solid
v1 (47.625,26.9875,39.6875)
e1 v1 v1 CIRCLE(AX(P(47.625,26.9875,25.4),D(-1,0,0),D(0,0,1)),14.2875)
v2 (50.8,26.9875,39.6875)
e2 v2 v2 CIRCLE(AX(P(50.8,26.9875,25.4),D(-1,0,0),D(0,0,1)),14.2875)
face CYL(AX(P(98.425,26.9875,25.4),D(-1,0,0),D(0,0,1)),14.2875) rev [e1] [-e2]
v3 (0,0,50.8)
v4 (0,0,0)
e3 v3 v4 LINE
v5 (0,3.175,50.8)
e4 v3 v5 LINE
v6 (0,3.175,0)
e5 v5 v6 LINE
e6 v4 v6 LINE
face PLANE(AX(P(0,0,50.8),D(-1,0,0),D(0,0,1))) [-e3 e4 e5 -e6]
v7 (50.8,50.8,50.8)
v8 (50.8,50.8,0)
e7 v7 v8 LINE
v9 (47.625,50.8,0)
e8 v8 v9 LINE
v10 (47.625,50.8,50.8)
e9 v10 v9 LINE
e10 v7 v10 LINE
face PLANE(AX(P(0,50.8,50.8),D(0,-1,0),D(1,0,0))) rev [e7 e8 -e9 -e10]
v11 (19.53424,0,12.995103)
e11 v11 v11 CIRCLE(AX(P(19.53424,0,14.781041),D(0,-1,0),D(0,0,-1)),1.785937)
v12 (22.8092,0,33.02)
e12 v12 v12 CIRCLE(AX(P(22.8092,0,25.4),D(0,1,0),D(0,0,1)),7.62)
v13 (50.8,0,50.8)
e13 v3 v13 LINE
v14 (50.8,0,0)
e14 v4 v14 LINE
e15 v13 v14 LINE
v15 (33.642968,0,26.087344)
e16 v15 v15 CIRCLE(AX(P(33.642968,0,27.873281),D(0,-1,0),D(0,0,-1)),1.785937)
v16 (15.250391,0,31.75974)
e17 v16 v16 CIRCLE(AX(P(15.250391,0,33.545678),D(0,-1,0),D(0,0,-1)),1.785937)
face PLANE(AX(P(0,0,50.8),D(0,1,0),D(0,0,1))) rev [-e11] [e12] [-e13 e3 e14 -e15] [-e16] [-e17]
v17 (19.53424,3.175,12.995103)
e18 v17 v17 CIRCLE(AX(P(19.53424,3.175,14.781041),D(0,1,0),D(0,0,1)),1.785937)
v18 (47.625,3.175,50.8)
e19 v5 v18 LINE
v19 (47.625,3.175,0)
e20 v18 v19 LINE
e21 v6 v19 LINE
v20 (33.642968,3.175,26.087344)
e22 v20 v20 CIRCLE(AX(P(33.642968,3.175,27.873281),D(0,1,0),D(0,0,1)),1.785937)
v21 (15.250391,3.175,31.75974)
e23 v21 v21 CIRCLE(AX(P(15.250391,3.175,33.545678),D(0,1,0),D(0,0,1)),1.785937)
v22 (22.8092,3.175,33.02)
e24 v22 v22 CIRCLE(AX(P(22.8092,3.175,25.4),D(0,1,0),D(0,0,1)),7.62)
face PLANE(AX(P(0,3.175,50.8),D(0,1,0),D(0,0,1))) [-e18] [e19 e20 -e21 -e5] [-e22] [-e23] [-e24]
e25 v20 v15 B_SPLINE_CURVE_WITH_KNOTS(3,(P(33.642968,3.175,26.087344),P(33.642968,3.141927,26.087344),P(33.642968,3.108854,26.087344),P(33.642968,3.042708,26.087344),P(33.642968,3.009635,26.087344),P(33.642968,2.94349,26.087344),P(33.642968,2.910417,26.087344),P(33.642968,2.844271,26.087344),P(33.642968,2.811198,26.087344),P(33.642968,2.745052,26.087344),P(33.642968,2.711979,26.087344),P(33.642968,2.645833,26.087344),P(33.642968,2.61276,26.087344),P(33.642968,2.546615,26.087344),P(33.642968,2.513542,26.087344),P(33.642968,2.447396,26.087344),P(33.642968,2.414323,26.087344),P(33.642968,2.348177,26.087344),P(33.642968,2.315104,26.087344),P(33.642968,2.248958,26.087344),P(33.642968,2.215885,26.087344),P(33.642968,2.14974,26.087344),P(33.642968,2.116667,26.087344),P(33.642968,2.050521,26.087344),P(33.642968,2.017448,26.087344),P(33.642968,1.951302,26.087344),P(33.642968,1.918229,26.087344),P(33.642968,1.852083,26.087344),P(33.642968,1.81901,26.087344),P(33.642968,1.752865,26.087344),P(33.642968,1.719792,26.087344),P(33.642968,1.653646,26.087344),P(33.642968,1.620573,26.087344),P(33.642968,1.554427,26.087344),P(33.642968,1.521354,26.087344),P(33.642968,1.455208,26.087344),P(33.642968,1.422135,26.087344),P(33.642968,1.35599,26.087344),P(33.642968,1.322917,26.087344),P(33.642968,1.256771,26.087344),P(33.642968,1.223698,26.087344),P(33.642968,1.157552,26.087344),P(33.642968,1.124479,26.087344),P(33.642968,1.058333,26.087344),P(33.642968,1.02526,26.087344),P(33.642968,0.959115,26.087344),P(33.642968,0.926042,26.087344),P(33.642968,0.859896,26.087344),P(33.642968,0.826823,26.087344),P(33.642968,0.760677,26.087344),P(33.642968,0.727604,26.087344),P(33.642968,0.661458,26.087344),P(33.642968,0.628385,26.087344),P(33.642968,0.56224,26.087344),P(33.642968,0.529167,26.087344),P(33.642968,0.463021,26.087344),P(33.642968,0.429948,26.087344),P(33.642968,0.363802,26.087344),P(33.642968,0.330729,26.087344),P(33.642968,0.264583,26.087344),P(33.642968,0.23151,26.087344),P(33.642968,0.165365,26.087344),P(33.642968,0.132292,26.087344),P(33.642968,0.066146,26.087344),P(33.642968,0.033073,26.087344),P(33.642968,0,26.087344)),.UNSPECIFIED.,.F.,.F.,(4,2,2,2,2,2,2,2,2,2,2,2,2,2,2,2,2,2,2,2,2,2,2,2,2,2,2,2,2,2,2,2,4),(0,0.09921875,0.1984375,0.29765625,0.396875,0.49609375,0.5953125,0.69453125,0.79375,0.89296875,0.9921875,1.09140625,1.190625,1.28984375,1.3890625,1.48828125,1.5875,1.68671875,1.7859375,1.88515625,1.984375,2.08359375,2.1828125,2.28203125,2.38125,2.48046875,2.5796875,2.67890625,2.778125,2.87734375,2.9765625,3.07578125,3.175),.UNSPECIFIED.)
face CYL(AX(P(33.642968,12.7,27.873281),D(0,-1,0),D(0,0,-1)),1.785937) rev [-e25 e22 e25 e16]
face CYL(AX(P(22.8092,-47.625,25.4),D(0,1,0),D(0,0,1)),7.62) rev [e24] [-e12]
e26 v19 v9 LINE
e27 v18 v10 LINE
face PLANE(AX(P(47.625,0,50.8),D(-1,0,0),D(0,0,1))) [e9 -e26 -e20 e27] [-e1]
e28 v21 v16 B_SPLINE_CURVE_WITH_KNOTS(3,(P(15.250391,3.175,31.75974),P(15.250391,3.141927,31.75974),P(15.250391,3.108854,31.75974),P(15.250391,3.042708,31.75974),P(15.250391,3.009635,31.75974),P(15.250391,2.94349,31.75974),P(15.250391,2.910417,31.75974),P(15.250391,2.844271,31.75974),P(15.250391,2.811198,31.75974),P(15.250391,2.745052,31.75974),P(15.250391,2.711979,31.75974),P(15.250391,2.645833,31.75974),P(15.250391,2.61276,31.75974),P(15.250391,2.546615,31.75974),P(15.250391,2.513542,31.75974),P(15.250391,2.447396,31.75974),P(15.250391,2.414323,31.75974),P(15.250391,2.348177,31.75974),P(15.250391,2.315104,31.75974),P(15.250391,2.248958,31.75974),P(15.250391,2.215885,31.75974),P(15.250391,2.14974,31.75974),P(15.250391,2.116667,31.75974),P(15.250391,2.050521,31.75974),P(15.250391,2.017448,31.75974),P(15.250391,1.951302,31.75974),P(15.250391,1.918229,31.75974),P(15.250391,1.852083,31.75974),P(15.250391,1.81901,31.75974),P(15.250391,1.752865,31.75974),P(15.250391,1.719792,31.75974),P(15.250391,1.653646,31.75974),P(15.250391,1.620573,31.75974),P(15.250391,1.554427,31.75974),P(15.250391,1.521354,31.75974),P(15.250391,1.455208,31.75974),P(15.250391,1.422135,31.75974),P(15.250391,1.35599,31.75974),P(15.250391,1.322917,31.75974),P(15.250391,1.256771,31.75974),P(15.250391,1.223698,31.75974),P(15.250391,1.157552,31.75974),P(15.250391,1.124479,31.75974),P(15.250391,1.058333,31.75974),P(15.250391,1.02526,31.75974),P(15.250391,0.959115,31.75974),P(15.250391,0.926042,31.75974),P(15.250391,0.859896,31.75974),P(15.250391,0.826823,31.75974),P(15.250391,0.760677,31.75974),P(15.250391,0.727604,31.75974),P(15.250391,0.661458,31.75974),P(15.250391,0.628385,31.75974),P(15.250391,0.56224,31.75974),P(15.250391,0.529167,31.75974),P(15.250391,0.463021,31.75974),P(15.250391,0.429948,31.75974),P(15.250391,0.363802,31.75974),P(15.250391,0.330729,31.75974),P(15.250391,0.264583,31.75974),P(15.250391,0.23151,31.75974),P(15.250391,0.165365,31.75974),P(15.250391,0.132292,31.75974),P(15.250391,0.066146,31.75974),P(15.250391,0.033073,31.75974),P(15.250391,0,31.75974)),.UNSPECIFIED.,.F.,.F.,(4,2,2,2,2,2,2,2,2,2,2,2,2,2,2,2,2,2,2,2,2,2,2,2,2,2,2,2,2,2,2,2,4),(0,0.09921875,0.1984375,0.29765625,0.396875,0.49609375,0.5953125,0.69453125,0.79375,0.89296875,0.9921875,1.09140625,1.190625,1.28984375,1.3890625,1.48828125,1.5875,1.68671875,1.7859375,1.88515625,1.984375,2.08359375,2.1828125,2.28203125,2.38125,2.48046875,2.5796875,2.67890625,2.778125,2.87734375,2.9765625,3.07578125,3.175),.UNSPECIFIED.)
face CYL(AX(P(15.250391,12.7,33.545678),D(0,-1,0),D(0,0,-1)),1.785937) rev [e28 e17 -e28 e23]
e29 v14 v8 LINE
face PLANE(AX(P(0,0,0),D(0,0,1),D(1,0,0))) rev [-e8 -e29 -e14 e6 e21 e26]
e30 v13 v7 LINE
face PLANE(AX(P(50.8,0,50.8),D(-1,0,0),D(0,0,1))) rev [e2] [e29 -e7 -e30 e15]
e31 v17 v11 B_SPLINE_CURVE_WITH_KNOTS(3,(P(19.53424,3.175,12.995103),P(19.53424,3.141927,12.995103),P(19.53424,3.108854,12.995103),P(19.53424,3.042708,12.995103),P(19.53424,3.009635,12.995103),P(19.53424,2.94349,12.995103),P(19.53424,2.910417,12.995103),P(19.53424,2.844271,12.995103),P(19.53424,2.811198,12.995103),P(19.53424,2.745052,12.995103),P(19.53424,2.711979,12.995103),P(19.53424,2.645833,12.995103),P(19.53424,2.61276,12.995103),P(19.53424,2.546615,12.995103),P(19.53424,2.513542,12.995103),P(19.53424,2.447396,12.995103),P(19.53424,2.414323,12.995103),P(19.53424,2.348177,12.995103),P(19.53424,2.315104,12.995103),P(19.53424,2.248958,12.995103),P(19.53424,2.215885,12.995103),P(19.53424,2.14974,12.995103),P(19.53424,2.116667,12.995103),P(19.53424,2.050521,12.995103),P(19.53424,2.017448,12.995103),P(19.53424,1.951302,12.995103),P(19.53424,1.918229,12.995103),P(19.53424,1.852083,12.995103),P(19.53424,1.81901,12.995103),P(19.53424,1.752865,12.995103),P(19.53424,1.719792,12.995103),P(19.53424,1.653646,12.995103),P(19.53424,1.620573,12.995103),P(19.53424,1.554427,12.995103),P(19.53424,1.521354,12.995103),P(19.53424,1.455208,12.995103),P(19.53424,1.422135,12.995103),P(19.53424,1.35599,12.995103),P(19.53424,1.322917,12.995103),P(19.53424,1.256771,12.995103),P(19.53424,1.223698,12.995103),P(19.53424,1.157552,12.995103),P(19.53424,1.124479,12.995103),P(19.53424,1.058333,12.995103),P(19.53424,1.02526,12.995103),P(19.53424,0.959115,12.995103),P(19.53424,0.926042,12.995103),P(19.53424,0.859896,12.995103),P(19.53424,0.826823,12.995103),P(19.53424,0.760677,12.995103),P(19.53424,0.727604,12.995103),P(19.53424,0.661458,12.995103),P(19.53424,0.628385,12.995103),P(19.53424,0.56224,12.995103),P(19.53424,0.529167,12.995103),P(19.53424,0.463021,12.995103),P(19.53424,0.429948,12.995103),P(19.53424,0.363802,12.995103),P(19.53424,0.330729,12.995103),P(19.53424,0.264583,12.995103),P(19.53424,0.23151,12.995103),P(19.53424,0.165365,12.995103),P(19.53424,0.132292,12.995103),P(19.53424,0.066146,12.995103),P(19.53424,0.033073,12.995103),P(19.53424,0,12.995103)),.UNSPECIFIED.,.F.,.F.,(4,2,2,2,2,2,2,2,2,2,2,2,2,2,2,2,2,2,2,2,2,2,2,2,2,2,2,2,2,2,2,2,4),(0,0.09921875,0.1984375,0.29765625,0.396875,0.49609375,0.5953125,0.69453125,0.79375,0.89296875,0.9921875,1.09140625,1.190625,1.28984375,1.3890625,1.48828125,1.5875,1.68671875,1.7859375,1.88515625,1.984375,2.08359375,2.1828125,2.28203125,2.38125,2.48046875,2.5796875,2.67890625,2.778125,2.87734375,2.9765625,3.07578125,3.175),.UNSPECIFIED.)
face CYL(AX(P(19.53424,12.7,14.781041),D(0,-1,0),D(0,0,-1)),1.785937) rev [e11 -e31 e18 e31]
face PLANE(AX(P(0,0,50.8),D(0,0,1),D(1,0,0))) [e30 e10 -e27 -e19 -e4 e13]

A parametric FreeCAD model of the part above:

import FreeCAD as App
import Part
import Sketcher

V = App.Vector
Q = App.Units.Quantity

doc = App.newDocument("Part")
params = doc.addObject("Spreadsheet::Sheet", "Params")
for row, (alias, value) in enumerate([
    ("sketch1_width", "2 in"),
    ("sketch1_width2", "0.125 in"),
    ("pad1_length", "2 in"),
    ("sketch2_diameter", "1.125 in"),
    ("pocket1_length", "2 in"),
    ("sketch3_diameter", "0.6 in"),
    ("pocket2_length", "2 in"),
    ("sketch4_diameter", "0.140625 in"),
    ("pocket3_length", "0.5 in"),
], start=1):
    params.set(f"A{row}", alias)
    params.set(f"B{row}", "=" + value)
    params.setAlias(f"B{row}", alias)

body = doc.addObject("PartDesign::Body", "Body")

# Sketch on XY plane
sketch1 = body.newObject("Sketcher::SketchObject", "Sketch")
sketch1.AttachmentSupport = (doc.getObject("XY_Plane"), [""])
sketch1.MapMode = "FlatFace"
sketch1.addGeometry(Part.LineSegment(V(0, 3.2, 0), V(0, 0, 0)), False)
sketch1.addGeometry(Part.LineSegment(V(0, 0, 0), V(50.8, 0, 0)), False)
sketch1.addGeometry(Part.LineSegment(V(50.8, 0, 0), V(50.8, 50.8, 0)), False)
sketch1.addGeometry(Part.LineSegment(V(50.8, 50.8, 0), V(47.6, 50.8, 0)), False)
sketch1.addGeometry(Part.LineSegment(V(47.6, 50.8, 0), V(47.6, 3.2, 0)), False)
sketch1.addGeometry(Part.LineSegment(V(47.6, 3.2, 0), V(0, 3.2, 0)), False)
sketch1.addConstraint(Sketcher.Constraint("Coincident", 0, 2, 1, 1))
sketch1.addConstraint(Sketcher.Constraint("Coincident", 1, 2, 2, 1))
sketch1.addConstraint(Sketcher.Constraint("Coincident", 2, 2, 3, 1))
sketch1.addConstraint(Sketcher.Constraint("Coincident", 3, 2, 4, 1))
sketch1.addConstraint(Sketcher.Constraint("Coincident", 4, 2, 5, 1))
sketch1.addConstraint(Sketcher.Constraint("Coincident", 5, 2, 0, 1))
sketch1.addConstraint(Sketcher.Constraint("Vertical", 0))
sketch1.addConstraint(Sketcher.Constraint("Horizontal", 1))
sketch1.addConstraint(Sketcher.Constraint("Vertical", 2))
sketch1.addConstraint(Sketcher.Constraint("Horizontal", 3))
sketch1.addConstraint(Sketcher.Constraint("Vertical", 4))
sketch1.addConstraint(Sketcher.Constraint("Horizontal", 5))
sketch1.addConstraint(Sketcher.Constraint("Coincident", 0, 2, -1, 1))
sketch1.addConstraint(Sketcher.Constraint("Equal", 3, 0))
sketch1.addConstraint(Sketcher.Constraint("Equal", 1, 2))
sketch1.addConstraint(Sketcher.Constraint("DistanceX", 1, 1, 1, 2, Q("2 in")))
sketch1.addConstraint(Sketcher.Constraint("DistanceX", 3, 2, 3, 1, Q("0.125 in")))
sketch1.setExpression("Constraints[15]", "Params.sketch1_width")
sketch1.setExpression("Constraints[16]", "Params.sketch1_width2")
pad1 = body.newObject("PartDesign::Pad", "Pad")
pad1.Profile = sketch1
pad1.setExpression("Length", "Params.pad1_length")

# Sketch on YZ plane
sketch2 = body.newObject("Sketcher::SketchObject", "Sketch001")
sketch2.AttachmentSupport = (doc.getObject("YZ_Plane"), [""])
sketch2.MapMode = "FlatFace"
sketch2.AttachmentOffset = App.Placement(V(0, 0, 1.875 * 25.4), App.Rotation())
sketch2.addGeometry(Part.Circle(V(27, 25, 0), V(0, 0, 1), 14), False)
sketch2.addConstraint(Sketcher.Constraint("Diameter", 0, Q("1.125 in")))
sketch2.addConstraint(Sketcher.Constraint("DistanceY", -1, 1, 0, 3, Q("1 in")))
sketch2.addConstraint(Sketcher.Constraint("DistanceX", -1, 1, 0, 3, Q("1.0625 in")))
sketch2.setExpression("Constraints[0]", "Params.sketch2_diameter")
pocket1 = body.newObject("PartDesign::Pocket", "Pocket")
pocket1.Profile = sketch2
pocket1.setExpression("Length", "Params.pocket1_length")
pocket1.Reversed = True

# Sketch on XZ plane
sketch3 = body.newObject("Sketcher::SketchObject", "Sketch002")
sketch3.AttachmentSupport = (doc.getObject("XZ_Plane"), [""])
sketch3.MapMode = "FlatFace"
sketch3.AttachmentOffset = App.Placement(V(0, 0, -0.125 * 25.4), App.Rotation())
sketch3.addGeometry(Part.Circle(V(23, 25, 0), V(0, 0, 1), 8), False)
sketch3.addConstraint(Sketcher.Constraint("Diameter", 0, Q("0.6 in")))
sketch3.addConstraint(Sketcher.Constraint("DistanceY", -1, 1, 0, 3, Q("1 in")))
sketch3.addConstraint(Sketcher.Constraint("DistanceX", -1, 1, 0, 3, Q("0.898 in")))
sketch3.setExpression("Constraints[0]", "Params.sketch3_diameter")
pocket2 = body.newObject("PartDesign::Pocket", "Pocket001")
pocket2.Profile = sketch3
pocket2.setExpression("Length", "Params.pocket2_length")
pocket2.Reversed = True

# Sketch on XZ plane
sketch4 = body.newObject("Sketcher::SketchObject", "Sketch003")
sketch4.AttachmentSupport = (doc.getObject("XZ_Plane"), [""])
sketch4.MapMode = "FlatFace"
sketch4.addGeometry(Part.Circle(V(15.3, 33.5, 0), V(0, 0, 1), 1.8), False)
sketch4.addGeometry(Part.Circle(V(19.5, 14.8, 0), V(0, 0, 1), 1.8), False)
sketch4.addGeometry(Part.Circle(V(33.6, 27.9, 0), V(0, 0, 1), 1.8), False)
sketch4.addConstraint(Sketcher.Constraint("Equal", 0, 1))
sketch4.addConstraint(Sketcher.Constraint("Equal", 1, 2))
sketch4.addConstraint(Sketcher.Constraint("Diameter", 0, Q("0.140625 in")))
sketch4.addConstraint(Sketcher.Constraint("DistanceX", -1, 1, 0, 3, Q("15.250391 mm")))
sketch4.addConstraint(Sketcher.Constraint("DistanceX", -1, 1, 1, 3, Q("19.53424 mm")))
sketch4.addConstraint(Sketcher.Constraint("DistanceY", -1, 1, 1, 3, Q("14.781041 mm")))
sketch4.addConstraint(Sketcher.Constraint("DistanceX", -1, 1, 2, 3, Q("33.642968 mm")))
sketch4.addConstraint(Sketcher.Constraint("DistanceY", -1, 1, 2, 3, Q("27.873281 mm")))
sketch4.addConstraint(Sketcher.Constraint("DistanceY", -1, 1, 0, 3, Q("33.545678 mm")))
sketch4.setExpression("Constraints[2]", "Params.sketch4_diameter")
pocket3 = body.newObject("PartDesign::Pocket", "Pocket002")
pocket3.Profile = sketch4
pocket3.setExpression("Length", "Params.pocket3_length")

doc.recompute()
